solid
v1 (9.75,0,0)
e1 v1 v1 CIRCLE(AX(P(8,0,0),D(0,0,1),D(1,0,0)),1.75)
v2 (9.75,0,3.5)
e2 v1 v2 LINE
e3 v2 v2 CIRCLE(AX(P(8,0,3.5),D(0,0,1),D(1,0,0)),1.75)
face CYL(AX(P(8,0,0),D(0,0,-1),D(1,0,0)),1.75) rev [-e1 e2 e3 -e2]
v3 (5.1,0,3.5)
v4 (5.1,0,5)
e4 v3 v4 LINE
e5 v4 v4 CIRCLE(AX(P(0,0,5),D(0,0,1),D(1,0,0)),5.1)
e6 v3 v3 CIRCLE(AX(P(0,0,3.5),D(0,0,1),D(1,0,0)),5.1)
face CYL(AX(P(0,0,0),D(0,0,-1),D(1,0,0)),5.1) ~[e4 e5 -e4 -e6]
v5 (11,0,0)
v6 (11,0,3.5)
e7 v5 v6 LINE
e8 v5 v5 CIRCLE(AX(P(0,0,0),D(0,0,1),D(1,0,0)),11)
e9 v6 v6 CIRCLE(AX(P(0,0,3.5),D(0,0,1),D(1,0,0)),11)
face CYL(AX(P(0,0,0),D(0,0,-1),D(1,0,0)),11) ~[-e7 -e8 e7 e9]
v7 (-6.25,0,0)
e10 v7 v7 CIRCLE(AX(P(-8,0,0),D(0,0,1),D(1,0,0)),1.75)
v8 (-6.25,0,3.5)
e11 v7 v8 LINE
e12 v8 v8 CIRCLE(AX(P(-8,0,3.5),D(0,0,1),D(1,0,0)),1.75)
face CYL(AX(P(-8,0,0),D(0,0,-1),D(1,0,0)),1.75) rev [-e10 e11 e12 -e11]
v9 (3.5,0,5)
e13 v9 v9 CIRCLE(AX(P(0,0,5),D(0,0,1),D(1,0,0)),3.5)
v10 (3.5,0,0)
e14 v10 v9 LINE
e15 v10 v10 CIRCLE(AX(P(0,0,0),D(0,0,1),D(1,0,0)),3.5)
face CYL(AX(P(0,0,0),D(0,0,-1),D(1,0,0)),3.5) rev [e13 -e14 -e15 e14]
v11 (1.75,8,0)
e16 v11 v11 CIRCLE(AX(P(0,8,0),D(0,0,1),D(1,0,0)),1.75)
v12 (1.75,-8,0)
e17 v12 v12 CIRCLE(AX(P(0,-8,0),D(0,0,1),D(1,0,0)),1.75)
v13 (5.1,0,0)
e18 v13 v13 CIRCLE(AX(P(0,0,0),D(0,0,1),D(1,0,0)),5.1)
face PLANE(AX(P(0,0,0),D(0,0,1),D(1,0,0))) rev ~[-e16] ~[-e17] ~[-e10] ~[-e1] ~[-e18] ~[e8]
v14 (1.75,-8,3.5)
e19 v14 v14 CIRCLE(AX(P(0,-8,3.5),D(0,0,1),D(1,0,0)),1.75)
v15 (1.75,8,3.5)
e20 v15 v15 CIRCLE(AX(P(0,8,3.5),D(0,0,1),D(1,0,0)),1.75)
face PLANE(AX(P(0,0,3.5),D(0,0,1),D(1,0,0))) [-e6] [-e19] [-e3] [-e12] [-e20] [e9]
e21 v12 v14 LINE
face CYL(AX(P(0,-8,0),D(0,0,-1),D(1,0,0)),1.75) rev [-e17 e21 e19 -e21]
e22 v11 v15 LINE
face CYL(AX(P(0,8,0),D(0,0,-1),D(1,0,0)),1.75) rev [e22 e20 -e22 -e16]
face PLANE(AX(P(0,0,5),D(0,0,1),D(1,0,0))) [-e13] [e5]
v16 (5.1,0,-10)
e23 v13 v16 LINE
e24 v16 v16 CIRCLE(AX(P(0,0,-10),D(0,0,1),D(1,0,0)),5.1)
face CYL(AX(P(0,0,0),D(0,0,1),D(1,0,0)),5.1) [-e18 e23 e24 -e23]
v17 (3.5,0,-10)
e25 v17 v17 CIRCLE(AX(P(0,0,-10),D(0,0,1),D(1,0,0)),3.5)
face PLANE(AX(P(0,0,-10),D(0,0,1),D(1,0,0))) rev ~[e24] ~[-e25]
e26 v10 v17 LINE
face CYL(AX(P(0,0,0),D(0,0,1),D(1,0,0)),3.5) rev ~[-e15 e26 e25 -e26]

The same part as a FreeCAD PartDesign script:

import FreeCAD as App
import Part
import Sketcher

V = App.Vector
Q = App.Units.Quantity

doc = App.newDocument("Part")
params = doc.addObject("Spreadsheet::Sheet", "Params")
for row, (alias, value) in enumerate([
    ("sketch1_diameter", "22 mm"),
    ("sketch1_diameter2", "3.5 mm"),
    ("sketch1_diameter3", "10.2 mm"),
    ("pad1_length", "3.5 mm"),
    ("sketch2_diameter", "7 mm"),
    ("sketch2_diameter2", "10.2 mm"),
    ("pad2_length", "5 mm"),
    ("sketch3_diameter", "7 mm"),
    ("sketch3_diameter2", "10.2 mm"),
    ("pad3_length", "10 mm"),
], start=1):
    params.set(f"A{row}", alias)
    params.set(f"B{row}", "=" + value)
    params.setAlias(f"B{row}", alias)

body = doc.addObject("PartDesign::Body", "Body")

sketch1 = body.newObject("Sketcher::SketchObject", "Sketch")
sketch1.AttachmentSupport = (doc.getObject("XY_Plane"), [""])
sketch1.MapMode = "FlatFace"
sketch1.addGeometry([
    Part.Circle(V(0, 0, 0), V(0, 0, 1), 11),
    Part.Circle(V(0, -8, 0), V(0, 0, 1), 1.75),
    Part.Circle(V(-8, 0, 0), V(0, 0, 1), 1.75),
    Part.Circle(V(0, 0, 0), V(0, 0, 1), 5.1),
    Part.Circle(V(8, 0, 0), V(0, 0, 1), 1.75),
    Part.Circle(V(0, 8, 0), V(0, 0, 1), 1.75),
], False)
sketch1.addConstraint([
    Sketcher.Constraint("Coincident", 0, 3, -1, 1),
    Sketcher.Constraint("Coincident", 3, 3, -1, 1),
    Sketcher.Constraint("Equal", 1, 2),
    Sketcher.Constraint("Equal", 2, 4),
    Sketcher.Constraint("Equal", 4, 5),
    Sketcher.Constraint("Symmetric", 2, 3, 4, 3, -1, 1),
    Sketcher.Constraint("Symmetric", 1, 3, 5, 3, -1, 1),
    Sketcher.Constraint("PointOnObject", 1, 3, -2),
    Sketcher.Constraint("PointOnObject", 2, 3, -1),
    Sketcher.Constraint("Diameter", 0, Q("22 mm")),
    Sketcher.Constraint("Diameter", 1, Q("3.5 mm")),
    Sketcher.Constraint("Diameter", 3, Q("10.2 mm")),
    Sketcher.Constraint("DistanceY", 1, 3, -1, 1, Q("8 mm")),
    Sketcher.Constraint("DistanceX", 2, 3, -1, 1, Q("8 mm")),
])
sketch1.setExpression("Constraints[9]", "Params.sketch1_diameter")
sketch1.setExpression("Constraints[10]", "Params.sketch1_diameter2")
sketch1.setExpression("Constraints[11]", "Params.sketch1_diameter3")
pad1 = body.newObject("PartDesign::Pad", "Pad")
pad1.Profile = sketch1
pad1.setExpression("Length", "Params.pad1_length")

sketch2 = body.newObject("Sketcher::SketchObject", "Sketch001")
sketch2.AttachmentSupport = (doc.getObject("XY_Plane"), [""])
sketch2.MapMode = "FlatFace"
sketch2.addGeometry([
    Part.Circle(V(0, 0, 0), V(0, 0, 1), 5.1),
    Part.Circle(V(0, 0, 0), V(0, 0, 1), 3.5),
], False)
sketch2.addConstraint([
    Sketcher.Constraint("Coincident", 0, 3, -1, 1),
    Sketcher.Constraint("Coincident", 1, 3, -1, 1),
    Sketcher.Constraint("Diameter", 1, Q("7 mm")),
    Sketcher.Constraint("Diameter", 0, Q("10.2 mm")),
])
sketch2.setExpression("Constraints[2]", "Params.sketch2_diameter")
sketch2.setExpression("Constraints[3]", "Params.sketch2_diameter2")
pad2 = body.newObject("PartDesign::Pad", "Pad001")
pad2.Profile = sketch2
pad2.setExpression("Length", "Params.pad2_length")

sketch3 = body.newObject("Sketcher::SketchObject", "Sketch002")
sketch3.AttachmentSupport = (doc.getObject("XY_Plane"), [""])
sketch3.MapMode = "FlatFace"
sketch3.addGeometry([
    Part.Circle(V(0, 0, 0), V(0, 0, 1), 5.1),
    Part.Circle(V(0, 0, 0), V(0, 0, 1), 3.5),
], False)
sketch3.addConstraint([
    Sketcher.Constraint("Coincident", 0, 3, -1, 1),
    Sketcher.Constraint("Coincident", 1, 3, -1, 1),
    Sketcher.Constraint("Diameter", 1, Q("7 mm")),
    Sketcher.Constraint("Diameter", 0, Q("10.2 mm")),
])
sketch3.setExpression("Constraints[2]", "Params.sketch3_diameter")
sketch3.setExpression("Constraints[3]", "Params.sketch3_diameter2")
pad3 = body.newObject("PartDesign::Pad", "Pad002")
pad3.Profile = sketch3
pad3.setExpression("Length", "Params.pad3_length")
pad3.Reversed = True

doc.recompute()
